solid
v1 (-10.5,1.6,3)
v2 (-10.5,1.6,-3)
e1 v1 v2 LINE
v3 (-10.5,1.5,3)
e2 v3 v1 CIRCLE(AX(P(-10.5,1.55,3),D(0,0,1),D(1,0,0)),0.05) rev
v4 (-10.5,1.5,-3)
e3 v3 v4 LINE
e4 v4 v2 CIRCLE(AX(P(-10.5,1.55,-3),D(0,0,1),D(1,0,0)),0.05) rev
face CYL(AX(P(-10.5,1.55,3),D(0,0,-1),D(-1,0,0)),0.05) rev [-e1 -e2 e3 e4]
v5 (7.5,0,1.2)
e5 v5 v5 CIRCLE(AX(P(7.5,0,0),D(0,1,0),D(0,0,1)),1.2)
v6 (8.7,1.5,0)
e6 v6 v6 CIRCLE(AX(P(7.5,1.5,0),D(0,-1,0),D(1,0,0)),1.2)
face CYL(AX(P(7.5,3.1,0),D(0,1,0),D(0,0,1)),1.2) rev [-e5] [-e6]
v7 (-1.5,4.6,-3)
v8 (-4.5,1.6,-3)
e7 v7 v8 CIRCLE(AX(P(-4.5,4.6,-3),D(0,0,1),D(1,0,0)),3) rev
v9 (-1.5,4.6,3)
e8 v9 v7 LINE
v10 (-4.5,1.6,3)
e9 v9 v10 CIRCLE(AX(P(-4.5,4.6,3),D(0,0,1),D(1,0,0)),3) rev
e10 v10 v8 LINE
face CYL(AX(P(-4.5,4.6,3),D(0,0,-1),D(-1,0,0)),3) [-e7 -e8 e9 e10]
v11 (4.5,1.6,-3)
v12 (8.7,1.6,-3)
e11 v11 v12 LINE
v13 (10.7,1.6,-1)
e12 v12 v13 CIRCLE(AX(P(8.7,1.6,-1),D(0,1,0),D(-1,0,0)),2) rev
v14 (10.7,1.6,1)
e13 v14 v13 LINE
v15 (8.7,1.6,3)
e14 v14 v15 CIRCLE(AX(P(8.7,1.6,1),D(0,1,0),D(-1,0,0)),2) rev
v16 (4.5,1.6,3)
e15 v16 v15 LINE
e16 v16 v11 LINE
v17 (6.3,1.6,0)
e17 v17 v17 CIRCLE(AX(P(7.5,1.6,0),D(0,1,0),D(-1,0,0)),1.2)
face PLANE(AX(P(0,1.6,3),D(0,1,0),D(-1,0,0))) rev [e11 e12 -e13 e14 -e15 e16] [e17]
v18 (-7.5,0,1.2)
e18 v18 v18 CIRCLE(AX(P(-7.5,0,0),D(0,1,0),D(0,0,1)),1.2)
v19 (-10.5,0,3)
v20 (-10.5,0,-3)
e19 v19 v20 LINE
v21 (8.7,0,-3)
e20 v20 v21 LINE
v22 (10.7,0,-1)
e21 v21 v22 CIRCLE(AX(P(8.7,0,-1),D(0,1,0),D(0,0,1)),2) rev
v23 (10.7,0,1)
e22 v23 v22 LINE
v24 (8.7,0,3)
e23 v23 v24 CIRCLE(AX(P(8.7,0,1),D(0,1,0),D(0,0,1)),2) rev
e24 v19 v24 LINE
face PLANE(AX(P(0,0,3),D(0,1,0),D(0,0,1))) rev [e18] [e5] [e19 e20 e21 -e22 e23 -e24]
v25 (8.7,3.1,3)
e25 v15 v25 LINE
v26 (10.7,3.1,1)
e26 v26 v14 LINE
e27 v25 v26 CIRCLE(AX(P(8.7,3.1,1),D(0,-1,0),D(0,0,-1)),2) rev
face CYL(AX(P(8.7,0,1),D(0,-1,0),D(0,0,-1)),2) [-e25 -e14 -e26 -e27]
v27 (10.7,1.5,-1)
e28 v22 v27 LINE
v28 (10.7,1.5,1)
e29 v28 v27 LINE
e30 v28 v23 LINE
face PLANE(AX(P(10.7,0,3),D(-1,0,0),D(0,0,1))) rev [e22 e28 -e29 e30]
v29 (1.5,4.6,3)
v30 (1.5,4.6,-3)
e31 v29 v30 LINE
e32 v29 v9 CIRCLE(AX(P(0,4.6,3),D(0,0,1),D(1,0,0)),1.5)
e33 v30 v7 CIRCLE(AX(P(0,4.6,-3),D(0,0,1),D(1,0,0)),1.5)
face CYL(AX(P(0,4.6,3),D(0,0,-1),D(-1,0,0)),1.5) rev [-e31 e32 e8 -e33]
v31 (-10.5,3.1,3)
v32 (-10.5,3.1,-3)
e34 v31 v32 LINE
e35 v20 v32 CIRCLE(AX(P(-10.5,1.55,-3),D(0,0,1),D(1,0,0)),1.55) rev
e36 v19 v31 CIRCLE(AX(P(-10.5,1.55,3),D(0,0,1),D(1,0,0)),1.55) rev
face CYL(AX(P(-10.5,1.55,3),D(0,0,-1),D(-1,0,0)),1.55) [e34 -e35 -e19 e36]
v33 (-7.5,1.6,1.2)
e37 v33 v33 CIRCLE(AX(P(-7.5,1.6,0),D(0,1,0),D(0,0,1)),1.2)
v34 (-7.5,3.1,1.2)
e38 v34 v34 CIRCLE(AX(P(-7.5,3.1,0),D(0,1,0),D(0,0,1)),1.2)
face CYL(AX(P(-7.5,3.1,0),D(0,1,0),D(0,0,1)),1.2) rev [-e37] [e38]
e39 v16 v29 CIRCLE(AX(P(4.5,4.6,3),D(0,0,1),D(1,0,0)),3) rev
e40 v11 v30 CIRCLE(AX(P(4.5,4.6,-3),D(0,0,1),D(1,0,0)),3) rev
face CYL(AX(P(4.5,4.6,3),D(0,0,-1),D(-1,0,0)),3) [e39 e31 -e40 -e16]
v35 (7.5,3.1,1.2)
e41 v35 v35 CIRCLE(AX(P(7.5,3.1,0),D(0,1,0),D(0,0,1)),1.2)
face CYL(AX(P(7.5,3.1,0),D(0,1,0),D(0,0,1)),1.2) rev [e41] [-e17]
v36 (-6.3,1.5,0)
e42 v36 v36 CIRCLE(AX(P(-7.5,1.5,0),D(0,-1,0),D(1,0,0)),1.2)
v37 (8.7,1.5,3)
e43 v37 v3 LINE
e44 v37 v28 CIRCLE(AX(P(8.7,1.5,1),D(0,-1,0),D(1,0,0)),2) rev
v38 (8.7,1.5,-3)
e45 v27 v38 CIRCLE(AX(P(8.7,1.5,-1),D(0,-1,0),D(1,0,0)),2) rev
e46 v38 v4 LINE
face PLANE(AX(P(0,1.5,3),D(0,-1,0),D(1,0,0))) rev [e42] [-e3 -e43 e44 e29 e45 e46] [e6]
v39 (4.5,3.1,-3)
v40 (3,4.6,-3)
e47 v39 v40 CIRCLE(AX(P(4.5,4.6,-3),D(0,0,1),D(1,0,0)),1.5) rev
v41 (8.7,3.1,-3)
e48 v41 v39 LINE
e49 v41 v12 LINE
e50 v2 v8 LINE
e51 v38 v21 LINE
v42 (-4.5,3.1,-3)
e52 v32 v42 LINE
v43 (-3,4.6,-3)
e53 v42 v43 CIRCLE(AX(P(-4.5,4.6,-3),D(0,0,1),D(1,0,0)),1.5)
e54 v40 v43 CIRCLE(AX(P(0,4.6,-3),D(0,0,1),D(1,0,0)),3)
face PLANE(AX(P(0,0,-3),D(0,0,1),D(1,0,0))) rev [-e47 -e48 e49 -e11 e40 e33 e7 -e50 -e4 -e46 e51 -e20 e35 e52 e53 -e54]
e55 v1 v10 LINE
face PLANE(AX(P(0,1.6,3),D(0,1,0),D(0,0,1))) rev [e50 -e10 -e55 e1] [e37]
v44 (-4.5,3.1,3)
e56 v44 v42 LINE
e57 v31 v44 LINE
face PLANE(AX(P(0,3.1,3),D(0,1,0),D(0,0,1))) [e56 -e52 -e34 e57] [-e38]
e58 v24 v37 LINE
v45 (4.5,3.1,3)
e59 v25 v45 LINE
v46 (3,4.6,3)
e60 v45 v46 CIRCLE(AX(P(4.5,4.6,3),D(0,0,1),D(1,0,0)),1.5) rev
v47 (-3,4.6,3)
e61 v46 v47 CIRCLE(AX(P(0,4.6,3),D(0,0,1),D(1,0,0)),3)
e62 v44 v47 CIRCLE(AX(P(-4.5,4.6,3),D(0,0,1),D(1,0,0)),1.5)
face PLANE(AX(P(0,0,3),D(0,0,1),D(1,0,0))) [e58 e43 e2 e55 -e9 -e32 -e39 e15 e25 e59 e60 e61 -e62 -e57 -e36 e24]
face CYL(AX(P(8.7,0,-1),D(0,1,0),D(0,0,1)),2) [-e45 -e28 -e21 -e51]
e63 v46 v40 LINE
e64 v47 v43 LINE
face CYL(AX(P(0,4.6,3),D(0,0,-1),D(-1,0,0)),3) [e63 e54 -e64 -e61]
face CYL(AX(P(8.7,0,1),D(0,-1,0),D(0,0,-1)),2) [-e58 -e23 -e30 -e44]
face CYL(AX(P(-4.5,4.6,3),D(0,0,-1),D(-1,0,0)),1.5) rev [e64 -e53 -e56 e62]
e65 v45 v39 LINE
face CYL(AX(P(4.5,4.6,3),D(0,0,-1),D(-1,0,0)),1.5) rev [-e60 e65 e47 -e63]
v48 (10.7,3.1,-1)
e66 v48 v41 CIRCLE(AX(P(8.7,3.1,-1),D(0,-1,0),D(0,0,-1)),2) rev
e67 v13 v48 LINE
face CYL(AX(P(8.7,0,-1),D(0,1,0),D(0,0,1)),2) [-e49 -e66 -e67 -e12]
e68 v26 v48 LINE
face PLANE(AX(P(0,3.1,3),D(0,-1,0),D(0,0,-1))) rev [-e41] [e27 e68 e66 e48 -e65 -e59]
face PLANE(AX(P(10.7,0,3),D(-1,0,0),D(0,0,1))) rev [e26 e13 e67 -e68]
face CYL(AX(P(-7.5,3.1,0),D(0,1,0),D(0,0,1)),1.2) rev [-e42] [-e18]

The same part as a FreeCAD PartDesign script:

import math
import FreeCAD as App
import Part
import Sketcher
from FreeCAD import Vector


def edges_at(feature, points):
    """Names of the edges that pass closest to the given points."""
    edges = feature.Shape.Edges
    near = lambda p: min(range(len(edges)), key=lambda i: edges[i].distToShape(Part.Vertex(*p))[0])
    return sorted({f"Edge{near(p) + 1}" for p in points})

doc = App.newDocument("Part")
body = doc.addObject("PartDesign::Body", "Body")

# Sketch on XY plane
sketch1 = body.newObject("Sketcher::SketchObject", "Sketch")
sketch1.AttachmentSupport = (doc.getObject("XY_Plane"), [""])
sketch1.MapMode = "FlatFace"
sketch1.addGeometry([
    Part.ArcOfCircle(Part.Circle(Vector(4.5, 4.6, 0), Vector(0, 0, 1), 1.5), math.radians(180), math.radians(270)),  # 0
    Part.ArcOfCircle(Part.Circle(Vector(0, 4.6, 0), Vector(0, 0, 1), 3), math.radians(0), math.radians(90)),  # 1
    Part.ArcOfCircle(Part.Circle(Vector(0, 4.6, 0), Vector(0, 0, 1), 3), math.radians(90), math.radians(180)),  # 2
    Part.ArcOfCircle(Part.Circle(Vector(-4.5, 4.6, 0), Vector(0, 0, 1), 1.5), math.radians(-90), math.radians(0)),  # 3
    Part.LineSegment(Vector(-4.5, 3.1, 0), Vector(-10.5, 3.1, 0)),  # 4
    Part.ArcOfCircle(Part.Circle(Vector(-10.5, 1.55, 0), Vector(0, 0, 1), 1.55), math.radians(90), math.radians(270)),  # 5
    Part.LineSegment(Vector(-10.5, 0, 0), Vector(10.7, 0, 0)),  # 6
    Part.LineSegment(Vector(10.7, 0, 0), Vector(10.7, 1.5, 0)),  # 7
    Part.LineSegment(Vector(10.7, 1.5, 0), Vector(-10.5, 1.5, 0)),  # 8
    Part.ArcOfCircle(Part.Circle(Vector(-10.5, 1.55, 0), Vector(0, 0, 1), 0.05), math.radians(90), math.radians(270)),  # 9
    Part.LineSegment(Vector(-10.5, 1.6, 0), Vector(-4.5, 1.6, 0)),  # 10
    Part.ArcOfCircle(Part.Circle(Vector(-4.5, 4.6, 0), Vector(0, 0, 1), 3), math.radians(-90), math.radians(0)),  # 11
    Part.ArcOfCircle(Part.Circle(Vector(0, 4.6, 0), Vector(0, 0, 1), 1.5), math.radians(90), math.radians(180)),  # 12
    Part.ArcOfCircle(Part.Circle(Vector(0, 4.6, 0), Vector(0, 0, 1), 1.5), math.radians(0), math.radians(90)),  # 13
    Part.ArcOfCircle(Part.Circle(Vector(4.5, 4.6, 0), Vector(0, 0, 1), 3), math.radians(180), math.radians(270)),  # 14
    Part.LineSegment(Vector(4.5, 1.6, 0), Vector(10.7, 1.6, 0)),  # 15
    Part.LineSegment(Vector(10.7, 1.6, 0), Vector(10.7, 3.1, 0)),  # 16
    Part.LineSegment(Vector(10.7, 3.1, 0), Vector(4.5, 3.1, 0)),  # 17
], False)
sketch1.addConstraint([
    Sketcher.Constraint("Tangent", 0, 1, 1, 1),
    Sketcher.Constraint("Tangent", 1, 2, 2, 1),
    Sketcher.Constraint("Tangent", 2, 2, 3, 2),
    Sketcher.Constraint("Tangent", 3, 1, 4, 1),
    Sketcher.Constraint("Tangent", 4, 2, 5, 1),
    Sketcher.Constraint("Tangent", 5, 2, 6, 1),
    Sketcher.Constraint("Coincident", 6, 2, 7, 1),
    Sketcher.Constraint("Coincident", 7, 2, 8, 1),
    Sketcher.Constraint("Tangent", 8, 2, 9, 2),
    Sketcher.Constraint("Tangent", 9, 1, 10, 1),
    Sketcher.Constraint("Tangent", 10, 2, 11, 1),
    Sketcher.Constraint("Tangent", 11, 2, 12, 2),
    Sketcher.Constraint("Tangent", 12, 1, 13, 2),
    Sketcher.Constraint("Tangent", 13, 1, 14, 1),
    Sketcher.Constraint("Tangent", 14, 2, 15, 1),
    Sketcher.Constraint("Coincident", 15, 2, 16, 1),
    Sketcher.Constraint("Coincident", 16, 2, 17, 1),
    Sketcher.Constraint("Tangent", 17, 2, 0, 2),
    Sketcher.Constraint("Horizontal", 4),
    Sketcher.Constraint("Horizontal", 6),
    Sketcher.Constraint("Vertical", 7),
    Sketcher.Constraint("Horizontal", 8),
    Sketcher.Constraint("Horizontal", 10),
    Sketcher.Constraint("Horizontal", 15),
    Sketcher.Constraint("Vertical", 16),
    Sketcher.Constraint("Horizontal", 17),
    Sketcher.Constraint("Coincident", 9, 3, 5, 3),
    Sketcher.Constraint("Coincident", 11, 3, 3, 3),
    Sketcher.Constraint("Coincident", 12, 3, 1, 3),
    Sketcher.Constraint("Coincident", 14, 3, 0, 3),
    Sketcher.Constraint("Equal", 1, 2),
    Sketcher.Constraint("Equal", 0, 3),
    Sketcher.Constraint("Equal", 2, 11),
    Sketcher.Constraint("Equal", 12, 13),
    Sketcher.Constraint("Symmetric", 0, 3, 3, 3, -2),
    Sketcher.Constraint("PointOnObject", 1, 2, -2),
    Sketcher.Constraint("PointOnObject", 5, 2, -1),
    Sketcher.Constraint("PointOnObject", 12, 1, -2),
    Sketcher.Constraint("Horizontal", 0, 3, 1, 3),
    Sketcher.Constraint("Vertical", 7, 2, 15, 2),
    Sketcher.Constraint("Radius", 1, 3.0),
    Sketcher.Constraint("Radius", 0, 1.5),
    Sketcher.Constraint("DistanceX", 4, 2, 4, 1, 6.0),
    Sketcher.Constraint("Radius", 5, 1.55),
    Sketcher.Constraint("DistanceX", 6, 1, 6, 2, 21.2),
])
pad1 = body.newObject("PartDesign::Pad", "Pad")
pad1.Profile = sketch1
pad1.Length = 6
pad1.Midplane = True

# Sketch on XZ plane
sketch2 = body.newObject("Sketcher::SketchObject", "Sketch001")
sketch2.AttachmentSupport = (doc.getObject("XZ_Plane"), [""])
sketch2.MapMode = "FlatFace"
sketch2.AttachmentOffset = App.Placement(Vector(0, 0, -3.1), App.Rotation())
sketch2.addGeometry([
    Part.Circle(Vector(-7.5, 0, 0), Vector(0, 0, 1), 1.2),
    Part.Circle(Vector(7.5, 0, 0), Vector(0, 0, 1), 1.2),
], False)
sketch2.addConstraint([
    Sketcher.Constraint("Equal", 0, 1),
    Sketcher.Constraint("Symmetric", 0, 3, 1, 3, -1, 1),
    Sketcher.Constraint("PointOnObject", 0, 3, -1),
    Sketcher.Constraint("Diameter", 0, 2.4),
    Sketcher.Constraint("DistanceX", 0, 3, 1, 3, 15.0),
])
doc.recompute()
hole = body.newObject("PartDesign::Hole", "Hole")
hole.Profile = sketch2
hole.ThreadType = "None"
hole.Diameter = 2.4
hole.DepthType = "ThroughAll"
hole.Reversed = True
doc.recompute()

fillet = body.newObject("PartDesign::Fillet", "Fillet")
fillet.Base = (hole, edges_at(hole, [
    (10.7, 2.35, -3),
    (10.7, 0.75, -3),
    (10.7, 0.75, 3),
    (10.7, 2.35, 3),
]))
fillet.Radius = 2

doc.recompute()
